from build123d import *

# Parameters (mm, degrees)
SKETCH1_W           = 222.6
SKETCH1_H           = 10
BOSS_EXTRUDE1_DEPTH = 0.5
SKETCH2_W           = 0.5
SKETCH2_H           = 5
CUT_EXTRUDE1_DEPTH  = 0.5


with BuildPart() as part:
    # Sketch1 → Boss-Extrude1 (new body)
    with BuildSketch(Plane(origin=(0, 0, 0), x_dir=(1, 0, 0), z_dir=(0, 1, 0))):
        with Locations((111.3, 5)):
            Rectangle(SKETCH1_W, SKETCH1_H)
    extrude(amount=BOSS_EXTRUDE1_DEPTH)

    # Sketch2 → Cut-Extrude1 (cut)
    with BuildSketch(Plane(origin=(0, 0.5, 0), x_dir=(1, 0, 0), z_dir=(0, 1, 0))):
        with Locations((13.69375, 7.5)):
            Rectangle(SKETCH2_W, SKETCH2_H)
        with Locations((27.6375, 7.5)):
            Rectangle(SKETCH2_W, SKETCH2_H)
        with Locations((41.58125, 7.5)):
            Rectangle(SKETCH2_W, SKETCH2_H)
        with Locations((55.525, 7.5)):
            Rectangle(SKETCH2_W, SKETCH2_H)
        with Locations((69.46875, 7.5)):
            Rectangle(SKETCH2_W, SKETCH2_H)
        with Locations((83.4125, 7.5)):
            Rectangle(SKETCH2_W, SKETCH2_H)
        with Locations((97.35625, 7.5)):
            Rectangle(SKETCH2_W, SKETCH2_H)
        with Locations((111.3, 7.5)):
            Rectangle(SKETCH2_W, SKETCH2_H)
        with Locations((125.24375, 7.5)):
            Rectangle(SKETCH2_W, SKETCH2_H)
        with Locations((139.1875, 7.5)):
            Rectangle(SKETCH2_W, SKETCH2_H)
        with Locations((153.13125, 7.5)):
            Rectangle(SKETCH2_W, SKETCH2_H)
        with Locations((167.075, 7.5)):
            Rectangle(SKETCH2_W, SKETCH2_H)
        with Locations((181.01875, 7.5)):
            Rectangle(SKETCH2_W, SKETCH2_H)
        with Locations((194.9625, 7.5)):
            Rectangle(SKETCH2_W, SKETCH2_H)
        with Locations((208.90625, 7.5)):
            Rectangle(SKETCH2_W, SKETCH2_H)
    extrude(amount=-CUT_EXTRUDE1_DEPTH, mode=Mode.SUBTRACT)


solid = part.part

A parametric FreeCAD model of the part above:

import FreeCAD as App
import Part
import Sketcher
Q = App.Units.Quantity

doc = App.newDocument("Part")
body = doc.addObject("PartDesign::Body", "Body")

# Sketch on XZ plane
sketch1 = body.newObject("Sketcher::SketchObject", "Sketch")
sketch1.AttachmentSupport = (doc.getObject("XZ_Plane"), [""])
sketch1.MapMode = "FlatFace"
sketch1.addGeometry([
    Part.LineSegment(App.Vector(0, -10, 0), App.Vector(0, 0, 0)),
    Part.LineSegment(App.Vector(0, 0, 0), App.Vector(223, 0, 0)),
    Part.LineSegment(App.Vector(223, 0, 0), App.Vector(223, -10, 0)),
    Part.LineSegment(App.Vector(223, -10, 0), App.Vector(0, -10, 0)),
], False)
sketch1.addConstraint([
    Sketcher.Constraint("Coincident", 0, 2, 1, 1),
    Sketcher.Constraint("Coincident", 1, 2, 2, 1),
    Sketcher.Constraint("Coincident", 2, 2, 3, 1),
    Sketcher.Constraint("Coincident", 3, 2, 0, 1),
    Sketcher.Constraint("Vertical", 0),
    Sketcher.Constraint("Horizontal", 1),
    Sketcher.Constraint("Vertical", 2),
    Sketcher.Constraint("Horizontal", 3),
    Sketcher.Constraint("Coincident", 0, 2, -1, 1),
    Sketcher.Constraint("DistanceY", 0, 1, 0, 2, Q("10 mm")),
    Sketcher.Constraint("DistanceX", 1, 1, 1, 2, Q("222.6 mm")),
])
pad1 = body.newObject("PartDesign::Pad", "Pad")
pad1.Profile = sketch1
pad1.Length = 0.5
pad1.Reversed = True

# Sketch on XZ plane
sketch2 = body.newObject("Sketcher::SketchObject", "Sketch001")
sketch2.AttachmentSupport = (doc.getObject("XZ_Plane"), [""])
sketch2.MapMode = "FlatFace"
sketch2.AttachmentOffset = App.Placement(App.Vector(0, 0, -0.5), App.Rotation())
sketch2.addGeometry([
    Part.LineSegment(App.Vector(13.4, -10, 0), App.Vector(13.4, -5, 0)),  # 0
    Part.LineSegment(App.Vector(13.4, -5, 0), App.Vector(13.9, -5, 0)),  # 1
    Part.LineSegment(App.Vector(13.9, -5, 0), App.Vector(13.9, -10, 0)),  # 2
    Part.LineSegment(App.Vector(13.9, -10, 0), App.Vector(13.4, -10, 0)),  # 3
    Part.LineSegment(App.Vector(27.4, -10, 0), App.Vector(27.4, -5, 0)),  # 4
    Part.LineSegment(App.Vector(27.4, -5, 0), App.Vector(27.9, -5, 0)),  # 5
    Part.LineSegment(App.Vector(27.9, -5, 0), App.Vector(27.9, -10, 0)),  # 6
    Part.LineSegment(App.Vector(27.9, -10, 0), App.Vector(27.4, -10, 0)),  # 7
    Part.LineSegment(App.Vector(41.3, -10, 0), App.Vector(41.3, -5, 0)),  # 8
    Part.LineSegment(App.Vector(41.3, -5, 0), App.Vector(41.8, -5, 0)),  # 9
    Part.LineSegment(App.Vector(41.8, -5, 0), App.Vector(41.8, -10, 0)),  # 10
    Part.LineSegment(App.Vector(41.8, -10, 0), App.Vector(41.3, -10, 0)),  # 11
    Part.LineSegment(App.Vector(55.3, -10, 0), App.Vector(55.3, -5, 0)),  # 12
    Part.LineSegment(App.Vector(55.3, -5, 0), App.Vector(55.8, -5, 0)),  # 13
    Part.LineSegment(App.Vector(55.8, -5, 0), App.Vector(55.8, -10, 0)),  # 14
    Part.LineSegment(App.Vector(55.8, -10, 0), App.Vector(55.3, -10, 0)),  # 15
    Part.LineSegment(App.Vector(69.2, -10, 0), App.Vector(69.2, -5, 0)),  # 16
    Part.LineSegment(App.Vector(69.2, -5, 0), App.Vector(69.7, -5, 0)),  # 17
    Part.LineSegment(App.Vector(69.7, -5, 0), App.Vector(69.7, -10, 0)),  # 18
    Part.LineSegment(App.Vector(69.7, -10, 0), App.Vector(69.2, -10, 0)),  # 19
    Part.LineSegment(App.Vector(83.2, -10, 0), App.Vector(83.2, -5, 0)),  # 20
    Part.LineSegment(App.Vector(83.2, -5, 0), App.Vector(83.7, -5, 0)),  # 21
    Part.LineSegment(App.Vector(83.7, -5, 0), App.Vector(83.7, -10, 0)),  # 22
    Part.LineSegment(App.Vector(83.7, -10, 0), App.Vector(83.2, -10, 0)),  # 23
    Part.LineSegment(App.Vector(97.1, -10, 0), App.Vector(97.1, -5, 0)),  # 24
    Part.LineSegment(App.Vector(97.1, -5, 0), App.Vector(97.6, -5, 0)),  # 25
    Part.LineSegment(App.Vector(97.6, -5, 0), App.Vector(97.6, -10, 0)),  # 26
    Part.LineSegment(App.Vector(97.6, -10, 0), App.Vector(97.1, -10, 0)),  # 27
    Part.LineSegment(App.Vector(111, -10, 0), App.Vector(111, -5, 0)),  # 28
    Part.LineSegment(App.Vector(111, -5, 0), App.Vector(111.5, -5, 0)),  # 29
    Part.LineSegment(App.Vector(111.5, -5, 0), App.Vector(111.5, -10, 0)),  # 30
    Part.LineSegment(App.Vector(111.5, -10, 0), App.Vector(111, -10, 0)),  # 31
    Part.LineSegment(App.Vector(125, -10, 0), App.Vector(125, -5, 0)),  # 32
    Part.LineSegment(App.Vector(125, -5, 0), App.Vector(125.5, -5, 0)),  # 33
    Part.LineSegment(App.Vector(125.5, -5, 0), App.Vector(125.5, -10, 0)),  # 34
    Part.LineSegment(App.Vector(125.5, -10, 0), App.Vector(125, -10, 0)),  # 35
    Part.LineSegment(App.Vector(138.9, -10, 0), App.Vector(138.9, -5, 0)),  # 36
    Part.LineSegment(App.Vector(138.9, -5, 0), App.Vector(139.4, -5, 0)),  # 37
    Part.LineSegment(App.Vector(139.4, -5, 0), App.Vector(139.4, -10, 0)),  # 38
    Part.LineSegment(App.Vector(139.4, -10, 0), App.Vector(138.9, -10, 0)),  # 39
    Part.LineSegment(App.Vector(152.9, -10, 0), App.Vector(152.9, -5, 0)),  # 40
    Part.LineSegment(App.Vector(152.9, -5, 0), App.Vector(153.4, -5, 0)),  # 41
    Part.LineSegment(App.Vector(153.4, -5, 0), App.Vector(153.4, -10, 0)),  # 42
    Part.LineSegment(App.Vector(153.4, -10, 0), App.Vector(152.9, -10, 0)),  # 43
    Part.LineSegment(App.Vector(166.8, -10, 0), App.Vector(166.8, -5, 0)),  # 44
    Part.LineSegment(App.Vector(166.8, -5, 0), App.Vector(167.3, -5, 0)),  # 45
    Part.LineSegment(App.Vector(167.3, -5, 0), App.Vector(167.3, -10, 0)),  # 46
    Part.LineSegment(App.Vector(167.3, -10, 0), App.Vector(166.8, -10, 0)),  # 47
    Part.LineSegment(App.Vector(180.8, -10, 0), App.Vector(180.8, -5, 0)),  # 48
    Part.LineSegment(App.Vector(180.8, -5, 0), App.Vector(181.3, -5, 0)),  # 49
    Part.LineSegment(App.Vector(181.3, -5, 0), App.Vector(181.3, -10, 0)),  # 50
    Part.LineSegment(App.Vector(181.3, -10, 0), App.Vector(180.8, -10, 0)),  # 51
    Part.LineSegment(App.Vector(194.7, -10, 0), App.Vector(194.7, -5, 0)),  # 52
    Part.LineSegment(App.Vector(194.7, -5, 0), App.Vector(195.2, -5, 0)),  # 53
    Part.LineSegment(App.Vector(195.2, -5, 0), App.Vector(195.2, -10, 0)),  # 54
    Part.LineSegment(App.Vector(195.2, -10, 0), App.Vector(194.7, -10, 0)),  # 55
    Part.LineSegment(App.Vector(208.7, -10, 0), App.Vector(208.7, -5, 0)),  # 56
    Part.LineSegment(App.Vector(208.7, -5, 0), App.Vector(209.2, -5, 0)),  # 57
    Part.LineSegment(App.Vector(209.2, -5, 0), App.Vector(209.2, -10, 0)),  # 58
    Part.LineSegment(App.Vector(209.2, -10, 0), App.Vector(208.7, -10, 0)),  # 59
], False)
sketch2.addConstraint([
    Sketcher.Constraint("Coincident", 0, 2, 1, 1),
    Sketcher.Constraint("Coincident", 1, 2, 2, 1),
    Sketcher.Constraint("Coincident", 2, 2, 3, 1),
    Sketcher.Constraint("Coincident", 3, 2, 0, 1),
    Sketcher.Constraint("Coincident", 4, 2, 5, 1),
    Sketcher.Constraint("Coincident", 5, 2, 6, 1),
    Sketcher.Constraint("Coincident", 6, 2, 7, 1),
    Sketcher.Constraint("Coincident", 7, 2, 4, 1),
    Sketcher.Constraint("Coincident", 8, 2, 9, 1),
    Sketcher.Constraint("Coincident", 9, 2, 10, 1),
    Sketcher.Constraint("Coincident", 10, 2, 11, 1),
    Sketcher.Constraint("Coincident", 11, 2, 8, 1),
    Sketcher.Constraint("Coincident", 12, 2, 13, 1),
    Sketcher.Constraint("Coincident", 13, 2, 14, 1),
    Sketcher.Constraint("Coincident", 14, 2, 15, 1),
    Sketcher.Constraint("Coincident", 15, 2, 12, 1),
    Sketcher.Constraint("Coincident", 16, 2, 17, 1),
    Sketcher.Constraint("Coincident", 17, 2, 18, 1),
    Sketcher.Constraint("Coincident", 18, 2, 19, 1),
    Sketcher.Constraint("Coincident", 19, 2, 16, 1),
    Sketcher.Constraint("Coincident", 20, 2, 21, 1),
    Sketcher.Constraint("Coincident", 21, 2, 22, 1),
    Sketcher.Constraint("Coincident", 22, 2, 23, 1),
    Sketcher.Constraint("Coincident", 23, 2, 20, 1),
    Sketcher.Constraint("Coincident", 24, 2, 25, 1),
    Sketcher.Constraint("Coincident", 25, 2, 26, 1),
    Sketcher.Constraint("Coincident", 26, 2, 27, 1),
    Sketcher.Constraint("Coincident", 27, 2, 24, 1),
    Sketcher.Constraint("Coincident", 28, 2, 29, 1),
    Sketcher.Constraint("Coincident", 29, 2, 30, 1),
    Sketcher.Constraint("Coincident", 30, 2, 31, 1),
    Sketcher.Constraint("Coincident", 31, 2, 28, 1),
    Sketcher.Constraint("Coincident", 32, 2, 33, 1),
    Sketcher.Constraint("Coincident", 33, 2, 34, 1),
    Sketcher.Constraint("Coincident", 34, 2, 35, 1),
    Sketcher.Constraint("Coincident", 35, 2, 32, 1),
    Sketcher.Constraint("Coincident", 36, 2, 37, 1),
    Sketcher.Constraint("Coincident", 37, 2, 38, 1),
    Sketcher.Constraint("Coincident", 38, 2, 39, 1),
    Sketcher.Constraint("Coincident", 39, 2, 36, 1),
    Sketcher.Constraint("Coincident", 40, 2, 41, 1),
    Sketcher.Constraint("Coincident", 41, 2, 42, 1),
    Sketcher.Constraint("Coincident", 42, 2, 43, 1),
    Sketcher.Constraint("Coincident", 43, 2, 40, 1),
    Sketcher.Constraint("Coincident", 44, 2, 45, 1),
    Sketcher.Constraint("Coincident", 45, 2, 46, 1),
    Sketcher.Constraint("Coincident", 46, 2, 47, 1),
    Sketcher.Constraint("Coincident", 47, 2, 44, 1),
    Sketcher.Constraint("Coincident", 48, 2, 49, 1),
    Sketcher.Constraint("Coincident", 49, 2, 50, 1),
    Sketcher.Constraint("Coincident", 50, 2, 51, 1),
    Sketcher.Constraint("Coincident", 51, 2, 48, 1),
    Sketcher.Constraint("Coincident", 52, 2, 53, 1),
    Sketcher.Constraint("Coincident", 53, 2, 54, 1),
    Sketcher.Constraint("Coincident", 54, 2, 55, 1),
    Sketcher.Constraint("Coincident", 55, 2, 52, 1),
    Sketcher.Constraint("Coincident", 56, 2, 57, 1),
    Sketcher.Constraint("Coincident", 57, 2, 58, 1),
    Sketcher.Constraint("Coincident", 58, 2, 59, 1),
    Sketcher.Constraint("Coincident", 59, 2, 56, 1),
    Sketcher.Constraint("Vertical", 0),
    Sketcher.Constraint("Horizontal", 1),
    Sketcher.Constraint("Vertical", 2),
    Sketcher.Constraint("Horizontal", 3),
    Sketcher.Constraint("Vertical", 4),
    Sketcher.Constraint("Horizontal", 5),
    Sketcher.Constraint("Vertical", 6),
    Sketcher.Constraint("Horizontal", 7),
    Sketcher.Constraint("Vertical", 8),
    Sketcher.Constraint("Horizontal", 9),
    Sketcher.Constraint("Vertical", 10),
    Sketcher.Constraint("Horizontal", 11),
    Sketcher.Constraint("Vertical", 12),
    Sketcher.Constraint("Horizontal", 13),
    Sketcher.Constraint("Vertical", 14),
    Sketcher.Constraint("Horizontal", 15),
    Sketcher.Constraint("Vertical", 16),
    Sketcher.Constraint("Horizontal", 17),
    Sketcher.Constraint("Vertical", 18),
    Sketcher.Constraint("Horizontal", 19),
    Sketcher.Constraint("Vertical", 20),
    Sketcher.Constraint("Horizontal", 21),
    Sketcher.Constraint("Vertical", 22),
    Sketcher.Constraint("Horizontal", 23),
    Sketcher.Constraint("Vertical", 24),
    Sketcher.Constraint("Horizontal", 25),
    Sketcher.Constraint("Vertical", 26),
    Sketcher.Constraint("Horizontal", 27),
    Sketcher.Constraint("Vertical", 28),
    Sketcher.Constraint("Horizontal", 29),
    Sketcher.Constraint("Vertical", 30),
    Sketcher.Constraint("Horizontal", 31),
    Sketcher.Constraint("Vertical", 32),
    Sketcher.Constraint("Horizontal", 33),
    Sketcher.Constraint("Vertical", 34),
    Sketcher.Constraint("Horizontal", 35),
    Sketcher.Constraint("Vertical", 36),
    Sketcher.Constraint("Horizontal", 37),
    Sketcher.Constraint("Vertical", 38),
    Sketcher.Constraint("Horizontal", 39),
    Sketcher.Constraint("Vertical", 40),
    Sketcher.Constraint("Horizontal", 41),
    Sketcher.Constraint("Vertical", 42),
    Sketcher.Constraint("Horizontal", 43),
    Sketcher.Constraint("Vertical", 44),
    Sketcher.Constraint("Horizontal", 45),
    Sketcher.Constraint("Vertical", 46),
    Sketcher.Constraint("Horizontal", 47),
    Sketcher.Constraint("Vertical", 48),
    Sketcher.Constraint("Horizontal", 49),
    Sketcher.Constraint("Vertical", 50),
    Sketcher.Constraint("Horizontal", 51),
    Sketcher.Constraint("Vertical", 52),
    Sketcher.Constraint("Horizontal", 53),
    Sketcher.Constraint("Vertical", 54),
    Sketcher.Constraint("Horizontal", 55),
    Sketcher.Constraint("Vertical", 56),
    Sketcher.Constraint("Horizontal", 57),
    Sketcher.Constraint("Vertical", 58),
    Sketcher.Constraint("Horizontal", 59),
    Sketcher.Constraint("Horizontal", 1, 2, 4, 2),
    Sketcher.Constraint("Horizontal", 3, 2, 6, 2),
    Sketcher.Constraint("Horizontal", 5, 2, 8, 2),
    Sketcher.Constraint("Horizontal", 7, 2, 10, 2),
    Sketcher.Constraint("Horizontal", 9, 2, 12, 2),
    Sketcher.Constraint("Horizontal", 11, 2, 14, 2),
    Sketcher.Constraint("Horizontal", 13, 2, 16, 2),
    Sketcher.Constraint("Horizontal", 15, 2, 18, 2),
    Sketcher.Constraint("Horizontal", 17, 2, 20, 2),
    Sketcher.Constraint("Horizontal", 19, 2, 22, 2),
    Sketcher.Constraint("Horizontal", 21, 2, 24, 2),
    Sketcher.Constraint("Horizontal", 23, 2, 26, 2),
    Sketcher.Constraint("Horizontal", 25, 2, 28, 2),
    Sketcher.Constraint("Horizontal", 27, 2, 30, 2),
    Sketcher.Constraint("Horizontal", 29, 2, 32, 2),
    Sketcher.Constraint("Horizontal", 31, 2, 34, 2),
    Sketcher.Constraint("Horizontal", 33, 2, 36, 2),
    Sketcher.Constraint("Horizontal", 35, 2, 38, 2),
    Sketcher.Constraint("Horizontal", 37, 2, 40, 2),
    Sketcher.Constraint("Horizontal", 39, 2, 42, 2),
    Sketcher.Constraint("Horizontal", 41, 2, 44, 2),
    Sketcher.Constraint("Horizontal", 43, 2, 46, 2),
    Sketcher.Constraint("Horizontal", 45, 2, 48, 2),
    Sketcher.Constraint("Horizontal", 47, 2, 50, 2),
    Sketcher.Constraint("Horizontal", 49, 2, 52, 2),
    Sketcher.Constraint("Horizontal", 51, 2, 54, 2),
    Sketcher.Constraint("Horizontal", 53, 2, 56, 2),
    Sketcher.Constraint("Horizontal", 55, 2, 58, 2),
    Sketcher.Constraint("Equal", 3, 5),
    Sketcher.Constraint("Equal", 7, 9),
    Sketcher.Constraint("Equal", 11, 13),
    Sketcher.Constraint("Equal", 15, 17),
    Sketcher.Constraint("Equal", 19, 21),
    Sketcher.Constraint("Equal", 23, 25),
    Sketcher.Constraint("Equal", 27, 29),
    Sketcher.Constraint("Equal", 31, 33),
    Sketcher.Constraint("Equal", 35, 37),
    Sketcher.Constraint("Equal", 39, 41),
    Sketcher.Constraint("Equal", 43, 45),
    Sketcher.Constraint("Equal", 47, 49),
    Sketcher.Constraint("Equal", 51, 53),
    Sketcher.Constraint("Equal", 55, 57),
    Sketcher.Constraint("DistanceY", 0, 1, 0, 2, Q("5 mm")),
    Sketcher.Constraint("DistanceX", 1, 1, 1, 2, Q("0.5 mm")),
    Sketcher.Constraint("DistanceY", 0, 2, -1, 1, Q("5 mm")),
    Sketcher.Constraint("DistanceX", -1, 1, 28, 2, Q("111.05 mm")),
    Sketcher.Constraint("DistanceX", -1, 1, 12, 2, Q("55.275 mm")),
    Sketcher.Constraint("DistanceX", -1, 1, 44, 2, Q("166.825 mm")),
    Sketcher.Constraint("DistanceX", -1, 1, 4, 2, Q("27.3875 mm")),
    Sketcher.Constraint("DistanceX", -1, 1, 20, 2, Q("83.1625 mm")),
    Sketcher.Constraint("DistanceX", -1, 1, 36, 2, Q("138.9375 mm")),
    Sketcher.Constraint("DistanceX", -1, 1, 52, 2, Q("194.7125 mm")),
    Sketcher.Constraint("DistanceX", 1, 2, 8, 2, Q("27.3875 mm")),
    Sketcher.Constraint("DistanceX", 9, 2, 16, 2, Q("27.3875 mm")),
    Sketcher.Constraint("DistanceX", 17, 2, 24, 2, Q("27.3875 mm")),
    Sketcher.Constraint("DistanceX", 25, 2, 32, 2, Q("27.3875 mm")),
    Sketcher.Constraint("DistanceX", 33, 2, 40, 2, Q("27.3875 mm")),
    Sketcher.Constraint("DistanceX", 41, 2, 48, 2, Q("27.3875 mm")),
    Sketcher.Constraint("DistanceX", 49, 2, 56, 2, Q("27.3875 mm")),
    Sketcher.Constraint("DistanceX", -1, 1, 0, 2, Q("13.44375 mm")),
])
pocket1 = body.newObject("PartDesign::Pocket", "Pocket")
pocket1.Profile = sketch2
pocket1.Length = 0.5
pocket1.Reversed = True

doc.recompute()
